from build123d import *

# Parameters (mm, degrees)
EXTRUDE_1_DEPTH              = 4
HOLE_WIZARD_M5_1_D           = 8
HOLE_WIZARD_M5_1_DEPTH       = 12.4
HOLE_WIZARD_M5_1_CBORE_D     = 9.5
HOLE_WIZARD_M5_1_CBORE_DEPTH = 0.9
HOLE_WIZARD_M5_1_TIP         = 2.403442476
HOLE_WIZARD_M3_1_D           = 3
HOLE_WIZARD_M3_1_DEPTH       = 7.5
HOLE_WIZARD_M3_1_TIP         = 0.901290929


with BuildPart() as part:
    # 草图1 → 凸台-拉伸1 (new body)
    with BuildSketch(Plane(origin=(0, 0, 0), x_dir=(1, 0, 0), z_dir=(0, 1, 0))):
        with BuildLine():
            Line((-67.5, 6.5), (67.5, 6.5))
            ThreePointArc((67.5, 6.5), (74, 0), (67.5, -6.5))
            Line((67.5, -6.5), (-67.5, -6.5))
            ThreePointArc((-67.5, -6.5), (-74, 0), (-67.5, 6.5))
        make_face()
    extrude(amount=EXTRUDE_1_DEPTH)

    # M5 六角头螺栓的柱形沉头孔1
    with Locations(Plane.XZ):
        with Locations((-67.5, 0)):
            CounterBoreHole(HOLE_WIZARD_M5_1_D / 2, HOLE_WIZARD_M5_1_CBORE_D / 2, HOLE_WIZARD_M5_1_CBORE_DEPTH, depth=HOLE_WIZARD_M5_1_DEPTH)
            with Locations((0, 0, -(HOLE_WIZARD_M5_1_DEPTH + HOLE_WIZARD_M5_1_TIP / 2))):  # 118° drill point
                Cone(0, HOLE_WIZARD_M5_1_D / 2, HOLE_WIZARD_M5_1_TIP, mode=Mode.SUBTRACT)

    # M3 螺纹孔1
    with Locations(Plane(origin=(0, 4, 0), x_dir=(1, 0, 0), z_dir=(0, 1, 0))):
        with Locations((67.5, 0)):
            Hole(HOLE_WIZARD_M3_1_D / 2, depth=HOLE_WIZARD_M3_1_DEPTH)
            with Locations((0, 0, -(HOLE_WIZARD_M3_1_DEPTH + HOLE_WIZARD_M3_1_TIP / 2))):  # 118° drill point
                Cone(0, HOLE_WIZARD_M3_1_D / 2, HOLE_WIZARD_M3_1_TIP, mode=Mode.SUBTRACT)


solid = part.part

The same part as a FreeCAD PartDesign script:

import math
import FreeCAD as App
import Part
import Sketcher

doc = App.newDocument("Part")
body = doc.addObject("PartDesign::Body", "Body")

# Sketch on XZ plane
sketch1 = doc.addObject("Sketcher::SketchObject", "Sketch")
body.addObject(sketch1)
sketch1.AttachmentSupport = (doc.XZ_Plane, [""])
sketch1.MapMode = "FlatFace"
sketch1.addGeometry(Part.LineSegment(App.Vector(68, -6, 0), App.Vector(-68, -6, 0)), False)
sketch1.addGeometry(Part.ArcOfCircle(Part.Circle(App.Vector(-68, 0, 0), App.Vector(0, 0, 1), 6), math.radians(90), math.radians(270)), False)
sketch1.addGeometry(Part.LineSegment(App.Vector(-68, 6, 0), App.Vector(68, 6, 0)), False)
sketch1.addGeometry(Part.ArcOfCircle(Part.Circle(App.Vector(68, 0, 0), App.Vector(0, 0, 1), 6), math.radians(-90), math.radians(90)), False)
sketch1.addConstraint(Sketcher.Constraint("Tangent", 0, 2, 1, 2))
sketch1.addConstraint(Sketcher.Constraint("Tangent", 1, 1, 2, 1))
sketch1.addConstraint(Sketcher.Constraint("Tangent", 2, 2, 3, 2))
sketch1.addConstraint(Sketcher.Constraint("Tangent", 3, 1, 0, 1))
sketch1.addConstraint(Sketcher.Constraint("Horizontal", 0))
sketch1.addConstraint(Sketcher.Constraint("Horizontal", 2))
sketch1.addConstraint(Sketcher.Constraint("Symmetric", 1, 3, 3, 3, -1, 1))
sketch1.addConstraint(Sketcher.Constraint("Radius", 1, 6.5))
sketch1.addConstraint(Sketcher.Constraint("DistanceX", 0, 2, 0, 1, 135.0))
pad1 = doc.addObject("PartDesign::Pad", "Pad")
body.addObject(pad1)
pad1.Profile = sketch1
pad1.Length = 4
pad1.Reversed = True

# Sketch on XZ plane
sketch2 = doc.addObject("Sketcher::SketchObject", "Sketch001")
body.addObject(sketch2)
sketch2.AttachmentSupport = (doc.XZ_Plane, [""])
sketch2.MapMode = "FlatFace"
sketch2.addGeometry(Part.Circle(App.Vector(-67.5, 0, 0), App.Vector(0, 0, 1), 4), False)
sketch2.addConstraint(Sketcher.Constraint("PointOnObject", 0, 3, -1))
sketch2.addConstraint(Sketcher.Constraint("Diameter", 0, 8.0))
sketch2.addConstraint(Sketcher.Constraint("DistanceX", 0, 3, -1, 1, 67.5))
doc.recompute()
hole = doc.addObject("PartDesign::Hole", "Hole")
body.addObject(hole)
hole.Profile = sketch2
hole.ThreadType = "None"
hole.Diameter = 8
hole.DepthType = "Dimension"
hole.Depth = 12.4
hole.DrillPoint = "Angled"
hole.DrillPointAngle = 118
hole.HoleCutType = "Counterbore"
hole.HoleCutDiameter = 9.5
hole.HoleCutDepth = 0.9

# Sketch on XZ plane
sketch3 = doc.addObject("Sketcher::SketchObject", "Sketch002")
body.addObject(sketch3)
sketch3.AttachmentSupport = (doc.XZ_Plane, [""])
sketch3.MapMode = "FlatFace"
sketch3.AttachmentOffset = App.Placement(App.Vector(0, 0, -4), App.Rotation())
sketch3.addGeometry(Part.Circle(App.Vector(67.5, 0, 0), App.Vector(0, 0, 1), 1.5), False)
sketch3.addConstraint(Sketcher.Constraint("PointOnObject", 0, 3, -1))
sketch3.addConstraint(Sketcher.Constraint("Diameter", 0, 3.0))
sketch3.addConstraint(Sketcher.Constraint("DistanceX", -1, 1, 0, 3, 67.5))
doc.recompute()
hole2 = doc.addObject("PartDesign::Hole", "Hole001")
body.addObject(hole2)
hole2.Profile = sketch3
hole2.ThreadType = "None"
hole2.Diameter = 3
hole2.DepthType = "Dimension"
hole2.Depth = 7.5
hole2.DrillPoint = "Angled"
hole2.DrillPointAngle = 118
hole2.Reversed = True

doc.recompute()
